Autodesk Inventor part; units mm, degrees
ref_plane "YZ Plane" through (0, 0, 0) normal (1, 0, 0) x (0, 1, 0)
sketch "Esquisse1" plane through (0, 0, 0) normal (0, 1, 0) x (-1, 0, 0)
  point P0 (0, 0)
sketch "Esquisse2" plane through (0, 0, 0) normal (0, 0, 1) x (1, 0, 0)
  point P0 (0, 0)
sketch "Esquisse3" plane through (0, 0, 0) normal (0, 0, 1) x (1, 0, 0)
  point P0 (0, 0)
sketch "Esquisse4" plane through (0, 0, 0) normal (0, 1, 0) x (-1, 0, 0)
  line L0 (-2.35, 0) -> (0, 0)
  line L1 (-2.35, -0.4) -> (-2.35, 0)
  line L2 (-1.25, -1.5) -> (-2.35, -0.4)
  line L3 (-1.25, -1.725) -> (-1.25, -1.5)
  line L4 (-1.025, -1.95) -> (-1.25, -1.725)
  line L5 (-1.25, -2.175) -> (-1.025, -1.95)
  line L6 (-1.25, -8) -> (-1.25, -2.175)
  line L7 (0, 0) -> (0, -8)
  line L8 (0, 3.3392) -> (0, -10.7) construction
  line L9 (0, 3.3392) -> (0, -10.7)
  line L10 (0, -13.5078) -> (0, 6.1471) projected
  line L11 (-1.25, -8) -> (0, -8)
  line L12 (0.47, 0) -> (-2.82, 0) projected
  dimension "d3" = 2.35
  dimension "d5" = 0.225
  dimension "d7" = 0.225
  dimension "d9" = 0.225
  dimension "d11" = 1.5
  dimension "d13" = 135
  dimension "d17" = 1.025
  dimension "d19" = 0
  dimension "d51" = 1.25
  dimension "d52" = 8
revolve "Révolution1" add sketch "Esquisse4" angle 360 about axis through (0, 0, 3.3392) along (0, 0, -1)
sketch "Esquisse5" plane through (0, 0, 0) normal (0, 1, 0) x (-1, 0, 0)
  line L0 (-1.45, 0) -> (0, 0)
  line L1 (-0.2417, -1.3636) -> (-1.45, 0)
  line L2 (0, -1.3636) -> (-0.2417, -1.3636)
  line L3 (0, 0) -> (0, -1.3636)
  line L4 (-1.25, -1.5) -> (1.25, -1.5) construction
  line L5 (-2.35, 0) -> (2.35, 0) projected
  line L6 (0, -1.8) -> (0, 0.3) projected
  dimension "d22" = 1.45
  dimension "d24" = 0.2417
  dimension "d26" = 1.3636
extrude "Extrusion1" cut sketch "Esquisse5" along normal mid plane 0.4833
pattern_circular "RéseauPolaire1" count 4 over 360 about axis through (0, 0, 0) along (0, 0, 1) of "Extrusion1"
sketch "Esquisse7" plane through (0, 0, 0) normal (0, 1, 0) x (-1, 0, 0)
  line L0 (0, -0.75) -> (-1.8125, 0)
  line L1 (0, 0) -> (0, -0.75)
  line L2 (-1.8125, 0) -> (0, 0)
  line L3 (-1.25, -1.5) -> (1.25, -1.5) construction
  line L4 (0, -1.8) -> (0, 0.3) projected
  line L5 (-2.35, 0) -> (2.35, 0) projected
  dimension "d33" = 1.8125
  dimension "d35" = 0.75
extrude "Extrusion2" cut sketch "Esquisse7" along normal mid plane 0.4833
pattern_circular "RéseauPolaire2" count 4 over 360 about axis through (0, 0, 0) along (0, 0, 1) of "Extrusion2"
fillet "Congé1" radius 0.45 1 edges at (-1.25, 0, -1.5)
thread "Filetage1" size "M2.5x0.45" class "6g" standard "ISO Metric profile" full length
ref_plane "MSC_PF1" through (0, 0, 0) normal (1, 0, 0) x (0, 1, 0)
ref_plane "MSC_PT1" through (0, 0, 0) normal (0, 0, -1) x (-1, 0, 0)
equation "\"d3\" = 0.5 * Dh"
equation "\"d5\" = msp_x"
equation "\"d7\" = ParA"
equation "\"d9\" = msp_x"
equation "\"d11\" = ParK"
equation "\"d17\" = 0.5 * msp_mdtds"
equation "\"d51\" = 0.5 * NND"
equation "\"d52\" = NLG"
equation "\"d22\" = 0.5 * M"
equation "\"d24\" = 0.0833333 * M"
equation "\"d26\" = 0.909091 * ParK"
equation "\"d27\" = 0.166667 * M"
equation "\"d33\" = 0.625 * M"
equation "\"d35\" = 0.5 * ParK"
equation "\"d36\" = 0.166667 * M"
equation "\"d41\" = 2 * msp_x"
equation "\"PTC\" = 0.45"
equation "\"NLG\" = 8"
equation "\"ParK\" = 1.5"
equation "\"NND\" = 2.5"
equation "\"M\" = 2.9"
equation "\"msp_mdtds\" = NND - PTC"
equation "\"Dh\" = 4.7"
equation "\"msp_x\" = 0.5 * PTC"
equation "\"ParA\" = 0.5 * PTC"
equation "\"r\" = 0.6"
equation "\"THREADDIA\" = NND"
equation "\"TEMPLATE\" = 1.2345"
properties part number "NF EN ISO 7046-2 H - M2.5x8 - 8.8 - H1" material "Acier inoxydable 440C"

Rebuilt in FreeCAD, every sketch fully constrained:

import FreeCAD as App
import Part
import Sketcher

V = App.Vector
Q = App.Units.Quantity


def edges_at(feature, points):
    """Names of the edges that pass closest to the given points."""
    edges = feature.Shape.Edges
    near = lambda p: min(range(len(edges)), key=lambda i: edges[i].distToShape(Part.Vertex(*p))[0])
    return sorted({f"Edge{near(p) + 1}" for p in points})


def add_polygon(sketch, points):
    """Adds a closed chain of lines whose ends are joined by coincident constraints."""
    first, n = sketch.GeometryCount, len(points)
    for a, b in zip(points, points[1:] + points[:1]):
        sketch.addGeometry(Part.LineSegment(App.Vector(*a, 0), App.Vector(*b, 0)), False)
    for i in range(n):
        sketch.addConstraint(Sketcher.Constraint("Coincident", first + i, 2, first + (i + 1) % n, 1))

doc = App.newDocument("Part")
body = doc.addObject("PartDesign::Body", "Body")

# Sketch on XZ plane
sketch1 = body.newObject("Sketcher::SketchObject", "Sketch")
sketch1.AttachmentSupport = (doc.getObject("XZ_Plane"), [""])
sketch1.MapMode = "FlatFace"
add_polygon(sketch1, [(0, 0), (2.35, 0), (2.35, -0.4), (1.25, -1.5), (1.25, -1.725), (1.025, -1.95), (1.25, -2.175), (1.25, -8), (0, -8)])  # lines 0-8
sketch1.addConstraint([
    Sketcher.Constraint("Horizontal", 0),
    Sketcher.Constraint("Vertical", 1),
    Sketcher.Constraint("Vertical", 3),
    Sketcher.Constraint("Vertical", 6),
    Sketcher.Constraint("Horizontal", 7),
    Sketcher.Constraint("Vertical", 8),
    Sketcher.Constraint("Coincident", 8, 2, -1, 1),
    Sketcher.Constraint("Parallel", 2, 4),
    Sketcher.Constraint("Perpendicular", 4, 5),
    Sketcher.Constraint("Vertical", 3, 2, 5, 2),
    Sketcher.Constraint("Equal", 4, 5),
    Sketcher.Constraint("DistanceY", 8, 1, 8, 2, Q("8 mm")),
    Sketcher.Constraint("DistanceX", 0, 1, 0, 2, Q("2.35 mm")),
    Sketcher.Constraint("DistanceX", 7, 2, 7, 1, Q("1.25 mm")),
    Sketcher.Constraint("DistanceY", 2, 2, -1, 1, Q("1.5 mm")),
    Sketcher.Constraint("DistanceY", 3, 2, 3, 1, Q("0.225 mm")),
    Sketcher.Constraint("DistanceX", -1, 1, 4, 2, Q("1.025 mm")),
])
revolution = body.newObject("PartDesign::Revolution", "Revolution")
revolution.Profile = sketch1
revolution.ReferenceAxis = (sketch1, ["V_Axis"])
revolution.Angle = 360

# Sketch on XZ plane
sketch2 = body.newObject("Sketcher::SketchObject", "Sketch001")
sketch2.AttachmentSupport = (doc.getObject("XZ_Plane"), [""])
sketch2.MapMode = "FlatFace"
add_polygon(sketch2, [(0, 0), (1.45, 0), (0.2417, -1.3636), (0, -1.3636)])  # lines 0-3
sketch2.addConstraint([
    Sketcher.Constraint("Horizontal", 0),
    Sketcher.Constraint("Horizontal", 2),
    Sketcher.Constraint("Vertical", 3),
    Sketcher.Constraint("Coincident", 3, 2, -1, 1),
    Sketcher.Constraint("DistanceX", 0, 1, 0, 2, Q("1.45 mm")),
    Sketcher.Constraint("DistanceX", 2, 2, 2, 1, Q("0.2417 mm")),
    Sketcher.Constraint("DistanceY", 3, 1, 3, 2, Q("1.3636 mm")),
])
pocket1 = body.newObject("PartDesign::Pocket", "Pocket")
pocket1.Profile = sketch2
pocket1.Length = 0.4833
pocket1.Midplane = True
doc.recompute()

polarpattern = body.newObject("PartDesign::PolarPattern", "PolarPattern")
polarpattern.Originals = [pocket1]
polarpattern.Axis = (doc.getObject("Z_Axis"), [""])
polarpattern.Angle = 360
polarpattern.Occurrences = 4
body.Tip = polarpattern

# Sketch on XZ plane
sketch3 = body.newObject("Sketcher::SketchObject", "Sketch002")
sketch3.AttachmentSupport = (doc.getObject("XZ_Plane"), [""])
sketch3.MapMode = "FlatFace"
add_polygon(sketch3, [(1.8125, 0), (0, -0.75), (0, 0)])  # lines 0-2
sketch3.addConstraint([
    Sketcher.Constraint("Vertical", 1),
    Sketcher.Constraint("Horizontal", 2),
    Sketcher.Constraint("Coincident", 1, 2, -1, 1),
    Sketcher.Constraint("DistanceY", 1, 1, 1, 2, Q("0.75 mm")),
    Sketcher.Constraint("DistanceX", 2, 1, 2, 2, Q("1.8125 mm")),
])
pocket2 = body.newObject("PartDesign::Pocket", "Pocket001")
pocket2.Profile = sketch3
pocket2.Length = 0.4833
pocket2.Midplane = True
doc.recompute()

polarpattern2 = body.newObject("PartDesign::PolarPattern", "PolarPattern001")
polarpattern2.Originals = [pocket2]
polarpattern2.Axis = (doc.getObject("Z_Axis"), [""])
polarpattern2.Angle = 360
polarpattern2.Occurrences = 4
body.Tip = polarpattern2
doc.recompute()

fillet = body.newObject("PartDesign::Fillet", "Fillet")
fillet.Base = (polarpattern2, edges_at(polarpattern2, [(-1.25, 0, -1.5)]))
fillet.Radius = 0.45

doc.recompute()
